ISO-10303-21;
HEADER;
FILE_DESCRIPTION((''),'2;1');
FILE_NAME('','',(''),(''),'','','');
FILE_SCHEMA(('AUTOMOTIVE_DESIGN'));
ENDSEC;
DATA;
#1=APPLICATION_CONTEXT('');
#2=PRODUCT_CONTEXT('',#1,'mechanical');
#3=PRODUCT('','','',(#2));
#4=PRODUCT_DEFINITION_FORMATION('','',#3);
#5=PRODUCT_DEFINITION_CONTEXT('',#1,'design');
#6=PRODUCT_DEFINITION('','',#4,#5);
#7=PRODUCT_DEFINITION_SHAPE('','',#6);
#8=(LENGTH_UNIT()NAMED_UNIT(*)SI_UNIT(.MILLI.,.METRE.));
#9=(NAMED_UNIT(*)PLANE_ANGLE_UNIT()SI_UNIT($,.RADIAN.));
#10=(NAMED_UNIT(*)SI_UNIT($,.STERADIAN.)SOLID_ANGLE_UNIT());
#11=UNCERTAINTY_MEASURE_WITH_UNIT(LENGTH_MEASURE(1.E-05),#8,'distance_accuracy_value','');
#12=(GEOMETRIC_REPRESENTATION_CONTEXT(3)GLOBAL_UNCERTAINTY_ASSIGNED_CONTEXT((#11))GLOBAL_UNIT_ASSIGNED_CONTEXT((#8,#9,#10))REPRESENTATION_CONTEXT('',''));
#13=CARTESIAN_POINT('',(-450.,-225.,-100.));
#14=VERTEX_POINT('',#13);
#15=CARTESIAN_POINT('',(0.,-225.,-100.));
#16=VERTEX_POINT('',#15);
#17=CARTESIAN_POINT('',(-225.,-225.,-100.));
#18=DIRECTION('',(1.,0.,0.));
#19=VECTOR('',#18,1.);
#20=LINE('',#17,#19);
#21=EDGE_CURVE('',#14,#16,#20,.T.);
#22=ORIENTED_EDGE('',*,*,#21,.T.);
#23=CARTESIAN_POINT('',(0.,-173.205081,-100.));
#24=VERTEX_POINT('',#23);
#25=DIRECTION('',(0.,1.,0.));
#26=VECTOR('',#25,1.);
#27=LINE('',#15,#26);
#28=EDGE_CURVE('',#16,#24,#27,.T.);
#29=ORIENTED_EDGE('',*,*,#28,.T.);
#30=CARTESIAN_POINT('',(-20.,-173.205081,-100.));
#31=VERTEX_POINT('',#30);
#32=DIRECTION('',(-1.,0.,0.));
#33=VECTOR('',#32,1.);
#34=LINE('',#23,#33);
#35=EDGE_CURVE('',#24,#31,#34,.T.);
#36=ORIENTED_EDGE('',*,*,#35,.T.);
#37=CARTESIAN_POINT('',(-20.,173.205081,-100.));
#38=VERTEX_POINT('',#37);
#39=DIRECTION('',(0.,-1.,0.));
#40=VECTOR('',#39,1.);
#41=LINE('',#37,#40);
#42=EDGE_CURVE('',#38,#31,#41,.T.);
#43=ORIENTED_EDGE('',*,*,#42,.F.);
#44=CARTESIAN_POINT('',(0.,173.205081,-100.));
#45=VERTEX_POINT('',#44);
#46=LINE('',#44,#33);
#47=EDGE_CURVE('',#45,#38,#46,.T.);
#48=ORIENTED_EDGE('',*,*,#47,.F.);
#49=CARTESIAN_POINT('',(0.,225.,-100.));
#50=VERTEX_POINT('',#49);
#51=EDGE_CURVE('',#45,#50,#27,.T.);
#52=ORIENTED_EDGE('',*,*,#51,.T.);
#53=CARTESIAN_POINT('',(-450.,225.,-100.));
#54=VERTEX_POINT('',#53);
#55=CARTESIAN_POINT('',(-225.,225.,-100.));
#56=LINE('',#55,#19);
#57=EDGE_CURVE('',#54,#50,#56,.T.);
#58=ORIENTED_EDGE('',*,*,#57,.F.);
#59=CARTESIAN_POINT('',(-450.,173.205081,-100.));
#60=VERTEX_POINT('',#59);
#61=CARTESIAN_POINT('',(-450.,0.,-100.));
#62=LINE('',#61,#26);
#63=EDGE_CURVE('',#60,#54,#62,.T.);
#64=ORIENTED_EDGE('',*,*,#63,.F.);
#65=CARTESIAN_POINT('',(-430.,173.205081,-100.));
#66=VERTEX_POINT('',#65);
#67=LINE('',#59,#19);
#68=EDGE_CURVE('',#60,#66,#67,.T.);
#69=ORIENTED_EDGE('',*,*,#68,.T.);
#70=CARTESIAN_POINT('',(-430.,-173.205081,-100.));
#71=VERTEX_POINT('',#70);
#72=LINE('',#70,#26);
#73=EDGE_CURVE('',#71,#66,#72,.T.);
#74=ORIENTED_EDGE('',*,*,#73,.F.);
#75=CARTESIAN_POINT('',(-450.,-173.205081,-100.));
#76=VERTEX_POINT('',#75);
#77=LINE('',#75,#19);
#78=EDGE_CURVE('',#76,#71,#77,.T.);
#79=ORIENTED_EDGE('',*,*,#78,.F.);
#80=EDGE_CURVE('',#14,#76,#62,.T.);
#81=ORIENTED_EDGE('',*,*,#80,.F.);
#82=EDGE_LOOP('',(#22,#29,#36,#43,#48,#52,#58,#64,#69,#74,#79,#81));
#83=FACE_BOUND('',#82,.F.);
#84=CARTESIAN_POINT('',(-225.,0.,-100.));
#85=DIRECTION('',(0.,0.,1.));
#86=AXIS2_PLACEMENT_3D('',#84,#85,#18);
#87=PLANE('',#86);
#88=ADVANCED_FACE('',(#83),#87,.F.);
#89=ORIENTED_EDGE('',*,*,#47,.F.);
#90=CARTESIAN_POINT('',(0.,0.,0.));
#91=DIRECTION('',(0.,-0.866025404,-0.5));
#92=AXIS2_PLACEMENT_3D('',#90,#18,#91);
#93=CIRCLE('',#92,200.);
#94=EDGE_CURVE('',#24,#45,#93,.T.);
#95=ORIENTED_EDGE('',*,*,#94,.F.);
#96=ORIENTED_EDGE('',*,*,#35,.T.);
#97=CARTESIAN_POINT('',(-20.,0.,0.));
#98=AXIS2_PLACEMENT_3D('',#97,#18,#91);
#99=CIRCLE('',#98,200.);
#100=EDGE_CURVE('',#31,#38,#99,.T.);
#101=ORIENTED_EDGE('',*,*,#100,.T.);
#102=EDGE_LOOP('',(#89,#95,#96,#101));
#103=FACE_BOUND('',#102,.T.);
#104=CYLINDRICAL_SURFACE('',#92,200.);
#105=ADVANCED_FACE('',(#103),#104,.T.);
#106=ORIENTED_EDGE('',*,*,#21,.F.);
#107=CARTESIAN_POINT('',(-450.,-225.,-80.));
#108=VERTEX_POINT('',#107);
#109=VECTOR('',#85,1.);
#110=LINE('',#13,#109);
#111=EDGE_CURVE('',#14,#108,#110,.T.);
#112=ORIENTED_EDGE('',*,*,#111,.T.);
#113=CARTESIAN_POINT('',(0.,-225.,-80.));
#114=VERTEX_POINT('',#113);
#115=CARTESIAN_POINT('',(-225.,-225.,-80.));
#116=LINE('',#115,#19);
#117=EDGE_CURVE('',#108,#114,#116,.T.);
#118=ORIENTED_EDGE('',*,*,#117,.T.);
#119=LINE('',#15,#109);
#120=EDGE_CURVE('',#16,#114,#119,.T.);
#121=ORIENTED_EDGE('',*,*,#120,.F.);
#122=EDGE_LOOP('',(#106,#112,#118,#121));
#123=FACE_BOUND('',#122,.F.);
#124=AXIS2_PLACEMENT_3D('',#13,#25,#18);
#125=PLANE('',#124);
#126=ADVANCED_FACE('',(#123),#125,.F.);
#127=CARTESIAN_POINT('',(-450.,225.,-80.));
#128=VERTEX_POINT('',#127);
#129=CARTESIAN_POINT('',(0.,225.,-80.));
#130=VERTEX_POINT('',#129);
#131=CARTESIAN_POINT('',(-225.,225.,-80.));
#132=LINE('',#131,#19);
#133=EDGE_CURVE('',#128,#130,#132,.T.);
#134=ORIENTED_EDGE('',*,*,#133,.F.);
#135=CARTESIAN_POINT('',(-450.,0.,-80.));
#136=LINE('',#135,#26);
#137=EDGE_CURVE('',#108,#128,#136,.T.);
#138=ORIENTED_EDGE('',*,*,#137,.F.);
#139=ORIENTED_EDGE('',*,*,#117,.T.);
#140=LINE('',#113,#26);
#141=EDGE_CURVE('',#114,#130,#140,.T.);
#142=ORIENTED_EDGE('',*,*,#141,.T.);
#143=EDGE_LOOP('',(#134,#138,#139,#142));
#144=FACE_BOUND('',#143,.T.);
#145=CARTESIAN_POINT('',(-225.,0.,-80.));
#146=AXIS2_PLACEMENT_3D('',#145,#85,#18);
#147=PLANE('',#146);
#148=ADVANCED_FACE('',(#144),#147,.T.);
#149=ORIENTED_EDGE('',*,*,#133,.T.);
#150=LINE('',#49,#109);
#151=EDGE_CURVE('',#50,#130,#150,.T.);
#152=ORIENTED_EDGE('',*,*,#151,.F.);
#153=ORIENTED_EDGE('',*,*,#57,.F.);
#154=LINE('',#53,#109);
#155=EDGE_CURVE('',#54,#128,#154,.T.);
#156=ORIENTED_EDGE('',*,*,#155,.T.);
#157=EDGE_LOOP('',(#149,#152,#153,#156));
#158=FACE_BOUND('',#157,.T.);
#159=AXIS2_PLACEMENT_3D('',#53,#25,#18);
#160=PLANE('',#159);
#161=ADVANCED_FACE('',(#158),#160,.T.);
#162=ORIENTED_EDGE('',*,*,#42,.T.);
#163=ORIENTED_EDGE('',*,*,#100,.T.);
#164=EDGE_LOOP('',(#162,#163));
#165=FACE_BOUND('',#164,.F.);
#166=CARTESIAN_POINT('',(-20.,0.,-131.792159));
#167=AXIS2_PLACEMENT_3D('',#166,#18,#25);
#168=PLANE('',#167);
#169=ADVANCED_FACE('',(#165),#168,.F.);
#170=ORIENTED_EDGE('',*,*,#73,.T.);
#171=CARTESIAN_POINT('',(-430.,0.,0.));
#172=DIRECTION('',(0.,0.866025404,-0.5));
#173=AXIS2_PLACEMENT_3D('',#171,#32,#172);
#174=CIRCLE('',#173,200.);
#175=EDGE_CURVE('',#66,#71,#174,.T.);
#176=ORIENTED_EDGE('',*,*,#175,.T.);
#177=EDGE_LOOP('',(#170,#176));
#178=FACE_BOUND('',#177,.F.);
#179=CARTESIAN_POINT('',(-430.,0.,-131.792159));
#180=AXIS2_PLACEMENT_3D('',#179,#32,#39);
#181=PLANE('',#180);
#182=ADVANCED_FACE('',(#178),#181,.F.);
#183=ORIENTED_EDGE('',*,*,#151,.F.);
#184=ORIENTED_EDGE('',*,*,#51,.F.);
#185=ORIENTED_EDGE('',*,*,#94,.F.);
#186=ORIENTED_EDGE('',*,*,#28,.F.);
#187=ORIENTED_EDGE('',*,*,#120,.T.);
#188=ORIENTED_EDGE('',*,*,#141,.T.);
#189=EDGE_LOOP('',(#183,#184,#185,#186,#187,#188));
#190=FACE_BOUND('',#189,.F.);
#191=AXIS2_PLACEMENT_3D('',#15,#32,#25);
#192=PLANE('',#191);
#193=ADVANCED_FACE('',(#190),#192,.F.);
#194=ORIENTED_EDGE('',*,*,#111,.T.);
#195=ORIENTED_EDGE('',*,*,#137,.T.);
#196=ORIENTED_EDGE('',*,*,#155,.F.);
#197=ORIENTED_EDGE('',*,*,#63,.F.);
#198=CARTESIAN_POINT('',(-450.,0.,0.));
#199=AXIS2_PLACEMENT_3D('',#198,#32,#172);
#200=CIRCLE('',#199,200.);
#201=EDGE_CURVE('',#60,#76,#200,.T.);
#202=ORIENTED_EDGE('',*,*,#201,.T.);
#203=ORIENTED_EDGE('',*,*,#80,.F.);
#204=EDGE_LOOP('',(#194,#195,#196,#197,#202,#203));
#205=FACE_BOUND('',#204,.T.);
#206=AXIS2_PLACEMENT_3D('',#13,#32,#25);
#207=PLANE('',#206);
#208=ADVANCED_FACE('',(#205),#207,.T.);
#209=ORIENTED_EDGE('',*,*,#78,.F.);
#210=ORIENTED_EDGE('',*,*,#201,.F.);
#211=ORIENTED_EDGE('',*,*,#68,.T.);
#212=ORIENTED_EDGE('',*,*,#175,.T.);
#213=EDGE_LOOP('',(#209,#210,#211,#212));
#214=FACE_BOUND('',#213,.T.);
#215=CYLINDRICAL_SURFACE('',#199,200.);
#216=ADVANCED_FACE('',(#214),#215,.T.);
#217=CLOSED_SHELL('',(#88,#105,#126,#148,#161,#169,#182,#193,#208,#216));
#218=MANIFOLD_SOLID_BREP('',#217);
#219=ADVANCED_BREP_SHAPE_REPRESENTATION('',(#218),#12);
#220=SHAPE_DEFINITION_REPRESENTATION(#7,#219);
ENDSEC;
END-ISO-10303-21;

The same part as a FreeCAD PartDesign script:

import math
import FreeCAD as App
import Part
import Sketcher
from FreeCAD import Vector

doc = App.newDocument("Part")
body = doc.addObject("PartDesign::Body", "Body")

# Sketch on YZ plane
sketch1 = doc.addObject("Sketcher::SketchObject", "Sketch")
body.addObject(sketch1)
sketch1.AttachmentSupport = (doc.YZ_Plane, [""])
sketch1.MapMode = "FlatFace"
sketch1.addGeometry([
    Part.LineSegment(Vector(173, -100, 0), Vector(-173, -100, 0)),
    Part.ArcOfCircle(Part.Circle(Vector(0, 0, 0), Vector(0, 0, 1), 200), math.radians(-150), math.radians(-30)),
], False)
sketch1.addConstraint([
    Sketcher.Constraint("Coincident", 0, 1, 1, 2),
    Sketcher.Constraint("Coincident", 1, 1, 0, 2),
    Sketcher.Constraint("Horizontal", 0),
    Sketcher.Constraint("Coincident", 1, 3, -1, 1),
    Sketcher.Constraint("Radius", 1, 200.0),
    Sketcher.Constraint("DistanceY", 0, 1, -1, 1, 100.0),
])
pad1 = doc.addObject("PartDesign::Pad", "Pad")
body.addObject(pad1)
pad1.Profile = sketch1
pad1.Length = 20
pad1.Reversed = True

# Sketch on XY plane
sketch2 = doc.addObject("Sketcher::SketchObject", "Sketch001")
body.addObject(sketch2)
sketch2.AttachmentSupport = (doc.XY_Plane, [""])
sketch2.MapMode = "FlatFace"
sketch2.AttachmentOffset = App.Placement(Vector(0, 0, -100), App.Rotation())
sketch2.addGeometry([
    Part.LineSegment(Vector(-450, 225, 0), Vector(-450, -225, 0)),
    Part.LineSegment(Vector(-450, -225, 0), Vector(0, -225, 0)),
    Part.LineSegment(Vector(0, -225, 0), Vector(0, 225, 0)),
    Part.LineSegment(Vector(0, 225, 0), Vector(-450, 225, 0)),
], False)
sketch2.addConstraint([
    Sketcher.Constraint("Coincident", 0, 2, 1, 1),
    Sketcher.Constraint("Coincident", 1, 2, 2, 1),
    Sketcher.Constraint("Coincident", 2, 2, 3, 1),
    Sketcher.Constraint("Coincident", 3, 2, 0, 1),
    Sketcher.Constraint("Vertical", 0),
    Sketcher.Constraint("Horizontal", 1),
    Sketcher.Constraint("Vertical", 2),
    Sketcher.Constraint("Horizontal", 3),
    Sketcher.Constraint("Symmetric", 1, 2, 2, 2, -1, 1),
    Sketcher.Constraint("Equal", 3, 0),
    Sketcher.Constraint("DistanceX", 1, 1, 1, 2, 450.0),
])
pad2 = doc.addObject("PartDesign::Pad", "Pad001")
body.addObject(pad2)
pad2.Profile = sketch2
pad2.Length = 20

# Sketch on YZ plane
sketch3 = doc.addObject("Sketcher::SketchObject", "Sketch002")
body.addObject(sketch3)
sketch3.AttachmentSupport = (doc.YZ_Plane, [""])
sketch3.MapMode = "FlatFace"
sketch3.AttachmentOffset = App.Placement(Vector(0, 0, -450), App.Rotation())
sketch3.addGeometry([
    Part.LineSegment(Vector(-173, -100, 0), Vector(173, -100, 0)),
    Part.ArcOfCircle(Part.Circle(Vector(0, 0, 0), Vector(0, 0, 1), 200), math.radians(-150), math.radians(-30)),
], False)
sketch3.addConstraint([
    Sketcher.Constraint("Coincident", 0, 1, 1, 1),
    Sketcher.Constraint("Coincident", 1, 2, 0, 2),
    Sketcher.Constraint("Horizontal", 0),
    Sketcher.Constraint("Coincident", 1, 3, -1, 1),
    Sketcher.Constraint("Radius", 1, 200.0),
    Sketcher.Constraint("DistanceY", 0, 1, -1, 1, 100.0),
])
pad3 = doc.addObject("PartDesign::Pad", "Pad002")
body.addObject(pad3)
pad3.Profile = sketch3
pad3.Length = 20

doc.recompute()
